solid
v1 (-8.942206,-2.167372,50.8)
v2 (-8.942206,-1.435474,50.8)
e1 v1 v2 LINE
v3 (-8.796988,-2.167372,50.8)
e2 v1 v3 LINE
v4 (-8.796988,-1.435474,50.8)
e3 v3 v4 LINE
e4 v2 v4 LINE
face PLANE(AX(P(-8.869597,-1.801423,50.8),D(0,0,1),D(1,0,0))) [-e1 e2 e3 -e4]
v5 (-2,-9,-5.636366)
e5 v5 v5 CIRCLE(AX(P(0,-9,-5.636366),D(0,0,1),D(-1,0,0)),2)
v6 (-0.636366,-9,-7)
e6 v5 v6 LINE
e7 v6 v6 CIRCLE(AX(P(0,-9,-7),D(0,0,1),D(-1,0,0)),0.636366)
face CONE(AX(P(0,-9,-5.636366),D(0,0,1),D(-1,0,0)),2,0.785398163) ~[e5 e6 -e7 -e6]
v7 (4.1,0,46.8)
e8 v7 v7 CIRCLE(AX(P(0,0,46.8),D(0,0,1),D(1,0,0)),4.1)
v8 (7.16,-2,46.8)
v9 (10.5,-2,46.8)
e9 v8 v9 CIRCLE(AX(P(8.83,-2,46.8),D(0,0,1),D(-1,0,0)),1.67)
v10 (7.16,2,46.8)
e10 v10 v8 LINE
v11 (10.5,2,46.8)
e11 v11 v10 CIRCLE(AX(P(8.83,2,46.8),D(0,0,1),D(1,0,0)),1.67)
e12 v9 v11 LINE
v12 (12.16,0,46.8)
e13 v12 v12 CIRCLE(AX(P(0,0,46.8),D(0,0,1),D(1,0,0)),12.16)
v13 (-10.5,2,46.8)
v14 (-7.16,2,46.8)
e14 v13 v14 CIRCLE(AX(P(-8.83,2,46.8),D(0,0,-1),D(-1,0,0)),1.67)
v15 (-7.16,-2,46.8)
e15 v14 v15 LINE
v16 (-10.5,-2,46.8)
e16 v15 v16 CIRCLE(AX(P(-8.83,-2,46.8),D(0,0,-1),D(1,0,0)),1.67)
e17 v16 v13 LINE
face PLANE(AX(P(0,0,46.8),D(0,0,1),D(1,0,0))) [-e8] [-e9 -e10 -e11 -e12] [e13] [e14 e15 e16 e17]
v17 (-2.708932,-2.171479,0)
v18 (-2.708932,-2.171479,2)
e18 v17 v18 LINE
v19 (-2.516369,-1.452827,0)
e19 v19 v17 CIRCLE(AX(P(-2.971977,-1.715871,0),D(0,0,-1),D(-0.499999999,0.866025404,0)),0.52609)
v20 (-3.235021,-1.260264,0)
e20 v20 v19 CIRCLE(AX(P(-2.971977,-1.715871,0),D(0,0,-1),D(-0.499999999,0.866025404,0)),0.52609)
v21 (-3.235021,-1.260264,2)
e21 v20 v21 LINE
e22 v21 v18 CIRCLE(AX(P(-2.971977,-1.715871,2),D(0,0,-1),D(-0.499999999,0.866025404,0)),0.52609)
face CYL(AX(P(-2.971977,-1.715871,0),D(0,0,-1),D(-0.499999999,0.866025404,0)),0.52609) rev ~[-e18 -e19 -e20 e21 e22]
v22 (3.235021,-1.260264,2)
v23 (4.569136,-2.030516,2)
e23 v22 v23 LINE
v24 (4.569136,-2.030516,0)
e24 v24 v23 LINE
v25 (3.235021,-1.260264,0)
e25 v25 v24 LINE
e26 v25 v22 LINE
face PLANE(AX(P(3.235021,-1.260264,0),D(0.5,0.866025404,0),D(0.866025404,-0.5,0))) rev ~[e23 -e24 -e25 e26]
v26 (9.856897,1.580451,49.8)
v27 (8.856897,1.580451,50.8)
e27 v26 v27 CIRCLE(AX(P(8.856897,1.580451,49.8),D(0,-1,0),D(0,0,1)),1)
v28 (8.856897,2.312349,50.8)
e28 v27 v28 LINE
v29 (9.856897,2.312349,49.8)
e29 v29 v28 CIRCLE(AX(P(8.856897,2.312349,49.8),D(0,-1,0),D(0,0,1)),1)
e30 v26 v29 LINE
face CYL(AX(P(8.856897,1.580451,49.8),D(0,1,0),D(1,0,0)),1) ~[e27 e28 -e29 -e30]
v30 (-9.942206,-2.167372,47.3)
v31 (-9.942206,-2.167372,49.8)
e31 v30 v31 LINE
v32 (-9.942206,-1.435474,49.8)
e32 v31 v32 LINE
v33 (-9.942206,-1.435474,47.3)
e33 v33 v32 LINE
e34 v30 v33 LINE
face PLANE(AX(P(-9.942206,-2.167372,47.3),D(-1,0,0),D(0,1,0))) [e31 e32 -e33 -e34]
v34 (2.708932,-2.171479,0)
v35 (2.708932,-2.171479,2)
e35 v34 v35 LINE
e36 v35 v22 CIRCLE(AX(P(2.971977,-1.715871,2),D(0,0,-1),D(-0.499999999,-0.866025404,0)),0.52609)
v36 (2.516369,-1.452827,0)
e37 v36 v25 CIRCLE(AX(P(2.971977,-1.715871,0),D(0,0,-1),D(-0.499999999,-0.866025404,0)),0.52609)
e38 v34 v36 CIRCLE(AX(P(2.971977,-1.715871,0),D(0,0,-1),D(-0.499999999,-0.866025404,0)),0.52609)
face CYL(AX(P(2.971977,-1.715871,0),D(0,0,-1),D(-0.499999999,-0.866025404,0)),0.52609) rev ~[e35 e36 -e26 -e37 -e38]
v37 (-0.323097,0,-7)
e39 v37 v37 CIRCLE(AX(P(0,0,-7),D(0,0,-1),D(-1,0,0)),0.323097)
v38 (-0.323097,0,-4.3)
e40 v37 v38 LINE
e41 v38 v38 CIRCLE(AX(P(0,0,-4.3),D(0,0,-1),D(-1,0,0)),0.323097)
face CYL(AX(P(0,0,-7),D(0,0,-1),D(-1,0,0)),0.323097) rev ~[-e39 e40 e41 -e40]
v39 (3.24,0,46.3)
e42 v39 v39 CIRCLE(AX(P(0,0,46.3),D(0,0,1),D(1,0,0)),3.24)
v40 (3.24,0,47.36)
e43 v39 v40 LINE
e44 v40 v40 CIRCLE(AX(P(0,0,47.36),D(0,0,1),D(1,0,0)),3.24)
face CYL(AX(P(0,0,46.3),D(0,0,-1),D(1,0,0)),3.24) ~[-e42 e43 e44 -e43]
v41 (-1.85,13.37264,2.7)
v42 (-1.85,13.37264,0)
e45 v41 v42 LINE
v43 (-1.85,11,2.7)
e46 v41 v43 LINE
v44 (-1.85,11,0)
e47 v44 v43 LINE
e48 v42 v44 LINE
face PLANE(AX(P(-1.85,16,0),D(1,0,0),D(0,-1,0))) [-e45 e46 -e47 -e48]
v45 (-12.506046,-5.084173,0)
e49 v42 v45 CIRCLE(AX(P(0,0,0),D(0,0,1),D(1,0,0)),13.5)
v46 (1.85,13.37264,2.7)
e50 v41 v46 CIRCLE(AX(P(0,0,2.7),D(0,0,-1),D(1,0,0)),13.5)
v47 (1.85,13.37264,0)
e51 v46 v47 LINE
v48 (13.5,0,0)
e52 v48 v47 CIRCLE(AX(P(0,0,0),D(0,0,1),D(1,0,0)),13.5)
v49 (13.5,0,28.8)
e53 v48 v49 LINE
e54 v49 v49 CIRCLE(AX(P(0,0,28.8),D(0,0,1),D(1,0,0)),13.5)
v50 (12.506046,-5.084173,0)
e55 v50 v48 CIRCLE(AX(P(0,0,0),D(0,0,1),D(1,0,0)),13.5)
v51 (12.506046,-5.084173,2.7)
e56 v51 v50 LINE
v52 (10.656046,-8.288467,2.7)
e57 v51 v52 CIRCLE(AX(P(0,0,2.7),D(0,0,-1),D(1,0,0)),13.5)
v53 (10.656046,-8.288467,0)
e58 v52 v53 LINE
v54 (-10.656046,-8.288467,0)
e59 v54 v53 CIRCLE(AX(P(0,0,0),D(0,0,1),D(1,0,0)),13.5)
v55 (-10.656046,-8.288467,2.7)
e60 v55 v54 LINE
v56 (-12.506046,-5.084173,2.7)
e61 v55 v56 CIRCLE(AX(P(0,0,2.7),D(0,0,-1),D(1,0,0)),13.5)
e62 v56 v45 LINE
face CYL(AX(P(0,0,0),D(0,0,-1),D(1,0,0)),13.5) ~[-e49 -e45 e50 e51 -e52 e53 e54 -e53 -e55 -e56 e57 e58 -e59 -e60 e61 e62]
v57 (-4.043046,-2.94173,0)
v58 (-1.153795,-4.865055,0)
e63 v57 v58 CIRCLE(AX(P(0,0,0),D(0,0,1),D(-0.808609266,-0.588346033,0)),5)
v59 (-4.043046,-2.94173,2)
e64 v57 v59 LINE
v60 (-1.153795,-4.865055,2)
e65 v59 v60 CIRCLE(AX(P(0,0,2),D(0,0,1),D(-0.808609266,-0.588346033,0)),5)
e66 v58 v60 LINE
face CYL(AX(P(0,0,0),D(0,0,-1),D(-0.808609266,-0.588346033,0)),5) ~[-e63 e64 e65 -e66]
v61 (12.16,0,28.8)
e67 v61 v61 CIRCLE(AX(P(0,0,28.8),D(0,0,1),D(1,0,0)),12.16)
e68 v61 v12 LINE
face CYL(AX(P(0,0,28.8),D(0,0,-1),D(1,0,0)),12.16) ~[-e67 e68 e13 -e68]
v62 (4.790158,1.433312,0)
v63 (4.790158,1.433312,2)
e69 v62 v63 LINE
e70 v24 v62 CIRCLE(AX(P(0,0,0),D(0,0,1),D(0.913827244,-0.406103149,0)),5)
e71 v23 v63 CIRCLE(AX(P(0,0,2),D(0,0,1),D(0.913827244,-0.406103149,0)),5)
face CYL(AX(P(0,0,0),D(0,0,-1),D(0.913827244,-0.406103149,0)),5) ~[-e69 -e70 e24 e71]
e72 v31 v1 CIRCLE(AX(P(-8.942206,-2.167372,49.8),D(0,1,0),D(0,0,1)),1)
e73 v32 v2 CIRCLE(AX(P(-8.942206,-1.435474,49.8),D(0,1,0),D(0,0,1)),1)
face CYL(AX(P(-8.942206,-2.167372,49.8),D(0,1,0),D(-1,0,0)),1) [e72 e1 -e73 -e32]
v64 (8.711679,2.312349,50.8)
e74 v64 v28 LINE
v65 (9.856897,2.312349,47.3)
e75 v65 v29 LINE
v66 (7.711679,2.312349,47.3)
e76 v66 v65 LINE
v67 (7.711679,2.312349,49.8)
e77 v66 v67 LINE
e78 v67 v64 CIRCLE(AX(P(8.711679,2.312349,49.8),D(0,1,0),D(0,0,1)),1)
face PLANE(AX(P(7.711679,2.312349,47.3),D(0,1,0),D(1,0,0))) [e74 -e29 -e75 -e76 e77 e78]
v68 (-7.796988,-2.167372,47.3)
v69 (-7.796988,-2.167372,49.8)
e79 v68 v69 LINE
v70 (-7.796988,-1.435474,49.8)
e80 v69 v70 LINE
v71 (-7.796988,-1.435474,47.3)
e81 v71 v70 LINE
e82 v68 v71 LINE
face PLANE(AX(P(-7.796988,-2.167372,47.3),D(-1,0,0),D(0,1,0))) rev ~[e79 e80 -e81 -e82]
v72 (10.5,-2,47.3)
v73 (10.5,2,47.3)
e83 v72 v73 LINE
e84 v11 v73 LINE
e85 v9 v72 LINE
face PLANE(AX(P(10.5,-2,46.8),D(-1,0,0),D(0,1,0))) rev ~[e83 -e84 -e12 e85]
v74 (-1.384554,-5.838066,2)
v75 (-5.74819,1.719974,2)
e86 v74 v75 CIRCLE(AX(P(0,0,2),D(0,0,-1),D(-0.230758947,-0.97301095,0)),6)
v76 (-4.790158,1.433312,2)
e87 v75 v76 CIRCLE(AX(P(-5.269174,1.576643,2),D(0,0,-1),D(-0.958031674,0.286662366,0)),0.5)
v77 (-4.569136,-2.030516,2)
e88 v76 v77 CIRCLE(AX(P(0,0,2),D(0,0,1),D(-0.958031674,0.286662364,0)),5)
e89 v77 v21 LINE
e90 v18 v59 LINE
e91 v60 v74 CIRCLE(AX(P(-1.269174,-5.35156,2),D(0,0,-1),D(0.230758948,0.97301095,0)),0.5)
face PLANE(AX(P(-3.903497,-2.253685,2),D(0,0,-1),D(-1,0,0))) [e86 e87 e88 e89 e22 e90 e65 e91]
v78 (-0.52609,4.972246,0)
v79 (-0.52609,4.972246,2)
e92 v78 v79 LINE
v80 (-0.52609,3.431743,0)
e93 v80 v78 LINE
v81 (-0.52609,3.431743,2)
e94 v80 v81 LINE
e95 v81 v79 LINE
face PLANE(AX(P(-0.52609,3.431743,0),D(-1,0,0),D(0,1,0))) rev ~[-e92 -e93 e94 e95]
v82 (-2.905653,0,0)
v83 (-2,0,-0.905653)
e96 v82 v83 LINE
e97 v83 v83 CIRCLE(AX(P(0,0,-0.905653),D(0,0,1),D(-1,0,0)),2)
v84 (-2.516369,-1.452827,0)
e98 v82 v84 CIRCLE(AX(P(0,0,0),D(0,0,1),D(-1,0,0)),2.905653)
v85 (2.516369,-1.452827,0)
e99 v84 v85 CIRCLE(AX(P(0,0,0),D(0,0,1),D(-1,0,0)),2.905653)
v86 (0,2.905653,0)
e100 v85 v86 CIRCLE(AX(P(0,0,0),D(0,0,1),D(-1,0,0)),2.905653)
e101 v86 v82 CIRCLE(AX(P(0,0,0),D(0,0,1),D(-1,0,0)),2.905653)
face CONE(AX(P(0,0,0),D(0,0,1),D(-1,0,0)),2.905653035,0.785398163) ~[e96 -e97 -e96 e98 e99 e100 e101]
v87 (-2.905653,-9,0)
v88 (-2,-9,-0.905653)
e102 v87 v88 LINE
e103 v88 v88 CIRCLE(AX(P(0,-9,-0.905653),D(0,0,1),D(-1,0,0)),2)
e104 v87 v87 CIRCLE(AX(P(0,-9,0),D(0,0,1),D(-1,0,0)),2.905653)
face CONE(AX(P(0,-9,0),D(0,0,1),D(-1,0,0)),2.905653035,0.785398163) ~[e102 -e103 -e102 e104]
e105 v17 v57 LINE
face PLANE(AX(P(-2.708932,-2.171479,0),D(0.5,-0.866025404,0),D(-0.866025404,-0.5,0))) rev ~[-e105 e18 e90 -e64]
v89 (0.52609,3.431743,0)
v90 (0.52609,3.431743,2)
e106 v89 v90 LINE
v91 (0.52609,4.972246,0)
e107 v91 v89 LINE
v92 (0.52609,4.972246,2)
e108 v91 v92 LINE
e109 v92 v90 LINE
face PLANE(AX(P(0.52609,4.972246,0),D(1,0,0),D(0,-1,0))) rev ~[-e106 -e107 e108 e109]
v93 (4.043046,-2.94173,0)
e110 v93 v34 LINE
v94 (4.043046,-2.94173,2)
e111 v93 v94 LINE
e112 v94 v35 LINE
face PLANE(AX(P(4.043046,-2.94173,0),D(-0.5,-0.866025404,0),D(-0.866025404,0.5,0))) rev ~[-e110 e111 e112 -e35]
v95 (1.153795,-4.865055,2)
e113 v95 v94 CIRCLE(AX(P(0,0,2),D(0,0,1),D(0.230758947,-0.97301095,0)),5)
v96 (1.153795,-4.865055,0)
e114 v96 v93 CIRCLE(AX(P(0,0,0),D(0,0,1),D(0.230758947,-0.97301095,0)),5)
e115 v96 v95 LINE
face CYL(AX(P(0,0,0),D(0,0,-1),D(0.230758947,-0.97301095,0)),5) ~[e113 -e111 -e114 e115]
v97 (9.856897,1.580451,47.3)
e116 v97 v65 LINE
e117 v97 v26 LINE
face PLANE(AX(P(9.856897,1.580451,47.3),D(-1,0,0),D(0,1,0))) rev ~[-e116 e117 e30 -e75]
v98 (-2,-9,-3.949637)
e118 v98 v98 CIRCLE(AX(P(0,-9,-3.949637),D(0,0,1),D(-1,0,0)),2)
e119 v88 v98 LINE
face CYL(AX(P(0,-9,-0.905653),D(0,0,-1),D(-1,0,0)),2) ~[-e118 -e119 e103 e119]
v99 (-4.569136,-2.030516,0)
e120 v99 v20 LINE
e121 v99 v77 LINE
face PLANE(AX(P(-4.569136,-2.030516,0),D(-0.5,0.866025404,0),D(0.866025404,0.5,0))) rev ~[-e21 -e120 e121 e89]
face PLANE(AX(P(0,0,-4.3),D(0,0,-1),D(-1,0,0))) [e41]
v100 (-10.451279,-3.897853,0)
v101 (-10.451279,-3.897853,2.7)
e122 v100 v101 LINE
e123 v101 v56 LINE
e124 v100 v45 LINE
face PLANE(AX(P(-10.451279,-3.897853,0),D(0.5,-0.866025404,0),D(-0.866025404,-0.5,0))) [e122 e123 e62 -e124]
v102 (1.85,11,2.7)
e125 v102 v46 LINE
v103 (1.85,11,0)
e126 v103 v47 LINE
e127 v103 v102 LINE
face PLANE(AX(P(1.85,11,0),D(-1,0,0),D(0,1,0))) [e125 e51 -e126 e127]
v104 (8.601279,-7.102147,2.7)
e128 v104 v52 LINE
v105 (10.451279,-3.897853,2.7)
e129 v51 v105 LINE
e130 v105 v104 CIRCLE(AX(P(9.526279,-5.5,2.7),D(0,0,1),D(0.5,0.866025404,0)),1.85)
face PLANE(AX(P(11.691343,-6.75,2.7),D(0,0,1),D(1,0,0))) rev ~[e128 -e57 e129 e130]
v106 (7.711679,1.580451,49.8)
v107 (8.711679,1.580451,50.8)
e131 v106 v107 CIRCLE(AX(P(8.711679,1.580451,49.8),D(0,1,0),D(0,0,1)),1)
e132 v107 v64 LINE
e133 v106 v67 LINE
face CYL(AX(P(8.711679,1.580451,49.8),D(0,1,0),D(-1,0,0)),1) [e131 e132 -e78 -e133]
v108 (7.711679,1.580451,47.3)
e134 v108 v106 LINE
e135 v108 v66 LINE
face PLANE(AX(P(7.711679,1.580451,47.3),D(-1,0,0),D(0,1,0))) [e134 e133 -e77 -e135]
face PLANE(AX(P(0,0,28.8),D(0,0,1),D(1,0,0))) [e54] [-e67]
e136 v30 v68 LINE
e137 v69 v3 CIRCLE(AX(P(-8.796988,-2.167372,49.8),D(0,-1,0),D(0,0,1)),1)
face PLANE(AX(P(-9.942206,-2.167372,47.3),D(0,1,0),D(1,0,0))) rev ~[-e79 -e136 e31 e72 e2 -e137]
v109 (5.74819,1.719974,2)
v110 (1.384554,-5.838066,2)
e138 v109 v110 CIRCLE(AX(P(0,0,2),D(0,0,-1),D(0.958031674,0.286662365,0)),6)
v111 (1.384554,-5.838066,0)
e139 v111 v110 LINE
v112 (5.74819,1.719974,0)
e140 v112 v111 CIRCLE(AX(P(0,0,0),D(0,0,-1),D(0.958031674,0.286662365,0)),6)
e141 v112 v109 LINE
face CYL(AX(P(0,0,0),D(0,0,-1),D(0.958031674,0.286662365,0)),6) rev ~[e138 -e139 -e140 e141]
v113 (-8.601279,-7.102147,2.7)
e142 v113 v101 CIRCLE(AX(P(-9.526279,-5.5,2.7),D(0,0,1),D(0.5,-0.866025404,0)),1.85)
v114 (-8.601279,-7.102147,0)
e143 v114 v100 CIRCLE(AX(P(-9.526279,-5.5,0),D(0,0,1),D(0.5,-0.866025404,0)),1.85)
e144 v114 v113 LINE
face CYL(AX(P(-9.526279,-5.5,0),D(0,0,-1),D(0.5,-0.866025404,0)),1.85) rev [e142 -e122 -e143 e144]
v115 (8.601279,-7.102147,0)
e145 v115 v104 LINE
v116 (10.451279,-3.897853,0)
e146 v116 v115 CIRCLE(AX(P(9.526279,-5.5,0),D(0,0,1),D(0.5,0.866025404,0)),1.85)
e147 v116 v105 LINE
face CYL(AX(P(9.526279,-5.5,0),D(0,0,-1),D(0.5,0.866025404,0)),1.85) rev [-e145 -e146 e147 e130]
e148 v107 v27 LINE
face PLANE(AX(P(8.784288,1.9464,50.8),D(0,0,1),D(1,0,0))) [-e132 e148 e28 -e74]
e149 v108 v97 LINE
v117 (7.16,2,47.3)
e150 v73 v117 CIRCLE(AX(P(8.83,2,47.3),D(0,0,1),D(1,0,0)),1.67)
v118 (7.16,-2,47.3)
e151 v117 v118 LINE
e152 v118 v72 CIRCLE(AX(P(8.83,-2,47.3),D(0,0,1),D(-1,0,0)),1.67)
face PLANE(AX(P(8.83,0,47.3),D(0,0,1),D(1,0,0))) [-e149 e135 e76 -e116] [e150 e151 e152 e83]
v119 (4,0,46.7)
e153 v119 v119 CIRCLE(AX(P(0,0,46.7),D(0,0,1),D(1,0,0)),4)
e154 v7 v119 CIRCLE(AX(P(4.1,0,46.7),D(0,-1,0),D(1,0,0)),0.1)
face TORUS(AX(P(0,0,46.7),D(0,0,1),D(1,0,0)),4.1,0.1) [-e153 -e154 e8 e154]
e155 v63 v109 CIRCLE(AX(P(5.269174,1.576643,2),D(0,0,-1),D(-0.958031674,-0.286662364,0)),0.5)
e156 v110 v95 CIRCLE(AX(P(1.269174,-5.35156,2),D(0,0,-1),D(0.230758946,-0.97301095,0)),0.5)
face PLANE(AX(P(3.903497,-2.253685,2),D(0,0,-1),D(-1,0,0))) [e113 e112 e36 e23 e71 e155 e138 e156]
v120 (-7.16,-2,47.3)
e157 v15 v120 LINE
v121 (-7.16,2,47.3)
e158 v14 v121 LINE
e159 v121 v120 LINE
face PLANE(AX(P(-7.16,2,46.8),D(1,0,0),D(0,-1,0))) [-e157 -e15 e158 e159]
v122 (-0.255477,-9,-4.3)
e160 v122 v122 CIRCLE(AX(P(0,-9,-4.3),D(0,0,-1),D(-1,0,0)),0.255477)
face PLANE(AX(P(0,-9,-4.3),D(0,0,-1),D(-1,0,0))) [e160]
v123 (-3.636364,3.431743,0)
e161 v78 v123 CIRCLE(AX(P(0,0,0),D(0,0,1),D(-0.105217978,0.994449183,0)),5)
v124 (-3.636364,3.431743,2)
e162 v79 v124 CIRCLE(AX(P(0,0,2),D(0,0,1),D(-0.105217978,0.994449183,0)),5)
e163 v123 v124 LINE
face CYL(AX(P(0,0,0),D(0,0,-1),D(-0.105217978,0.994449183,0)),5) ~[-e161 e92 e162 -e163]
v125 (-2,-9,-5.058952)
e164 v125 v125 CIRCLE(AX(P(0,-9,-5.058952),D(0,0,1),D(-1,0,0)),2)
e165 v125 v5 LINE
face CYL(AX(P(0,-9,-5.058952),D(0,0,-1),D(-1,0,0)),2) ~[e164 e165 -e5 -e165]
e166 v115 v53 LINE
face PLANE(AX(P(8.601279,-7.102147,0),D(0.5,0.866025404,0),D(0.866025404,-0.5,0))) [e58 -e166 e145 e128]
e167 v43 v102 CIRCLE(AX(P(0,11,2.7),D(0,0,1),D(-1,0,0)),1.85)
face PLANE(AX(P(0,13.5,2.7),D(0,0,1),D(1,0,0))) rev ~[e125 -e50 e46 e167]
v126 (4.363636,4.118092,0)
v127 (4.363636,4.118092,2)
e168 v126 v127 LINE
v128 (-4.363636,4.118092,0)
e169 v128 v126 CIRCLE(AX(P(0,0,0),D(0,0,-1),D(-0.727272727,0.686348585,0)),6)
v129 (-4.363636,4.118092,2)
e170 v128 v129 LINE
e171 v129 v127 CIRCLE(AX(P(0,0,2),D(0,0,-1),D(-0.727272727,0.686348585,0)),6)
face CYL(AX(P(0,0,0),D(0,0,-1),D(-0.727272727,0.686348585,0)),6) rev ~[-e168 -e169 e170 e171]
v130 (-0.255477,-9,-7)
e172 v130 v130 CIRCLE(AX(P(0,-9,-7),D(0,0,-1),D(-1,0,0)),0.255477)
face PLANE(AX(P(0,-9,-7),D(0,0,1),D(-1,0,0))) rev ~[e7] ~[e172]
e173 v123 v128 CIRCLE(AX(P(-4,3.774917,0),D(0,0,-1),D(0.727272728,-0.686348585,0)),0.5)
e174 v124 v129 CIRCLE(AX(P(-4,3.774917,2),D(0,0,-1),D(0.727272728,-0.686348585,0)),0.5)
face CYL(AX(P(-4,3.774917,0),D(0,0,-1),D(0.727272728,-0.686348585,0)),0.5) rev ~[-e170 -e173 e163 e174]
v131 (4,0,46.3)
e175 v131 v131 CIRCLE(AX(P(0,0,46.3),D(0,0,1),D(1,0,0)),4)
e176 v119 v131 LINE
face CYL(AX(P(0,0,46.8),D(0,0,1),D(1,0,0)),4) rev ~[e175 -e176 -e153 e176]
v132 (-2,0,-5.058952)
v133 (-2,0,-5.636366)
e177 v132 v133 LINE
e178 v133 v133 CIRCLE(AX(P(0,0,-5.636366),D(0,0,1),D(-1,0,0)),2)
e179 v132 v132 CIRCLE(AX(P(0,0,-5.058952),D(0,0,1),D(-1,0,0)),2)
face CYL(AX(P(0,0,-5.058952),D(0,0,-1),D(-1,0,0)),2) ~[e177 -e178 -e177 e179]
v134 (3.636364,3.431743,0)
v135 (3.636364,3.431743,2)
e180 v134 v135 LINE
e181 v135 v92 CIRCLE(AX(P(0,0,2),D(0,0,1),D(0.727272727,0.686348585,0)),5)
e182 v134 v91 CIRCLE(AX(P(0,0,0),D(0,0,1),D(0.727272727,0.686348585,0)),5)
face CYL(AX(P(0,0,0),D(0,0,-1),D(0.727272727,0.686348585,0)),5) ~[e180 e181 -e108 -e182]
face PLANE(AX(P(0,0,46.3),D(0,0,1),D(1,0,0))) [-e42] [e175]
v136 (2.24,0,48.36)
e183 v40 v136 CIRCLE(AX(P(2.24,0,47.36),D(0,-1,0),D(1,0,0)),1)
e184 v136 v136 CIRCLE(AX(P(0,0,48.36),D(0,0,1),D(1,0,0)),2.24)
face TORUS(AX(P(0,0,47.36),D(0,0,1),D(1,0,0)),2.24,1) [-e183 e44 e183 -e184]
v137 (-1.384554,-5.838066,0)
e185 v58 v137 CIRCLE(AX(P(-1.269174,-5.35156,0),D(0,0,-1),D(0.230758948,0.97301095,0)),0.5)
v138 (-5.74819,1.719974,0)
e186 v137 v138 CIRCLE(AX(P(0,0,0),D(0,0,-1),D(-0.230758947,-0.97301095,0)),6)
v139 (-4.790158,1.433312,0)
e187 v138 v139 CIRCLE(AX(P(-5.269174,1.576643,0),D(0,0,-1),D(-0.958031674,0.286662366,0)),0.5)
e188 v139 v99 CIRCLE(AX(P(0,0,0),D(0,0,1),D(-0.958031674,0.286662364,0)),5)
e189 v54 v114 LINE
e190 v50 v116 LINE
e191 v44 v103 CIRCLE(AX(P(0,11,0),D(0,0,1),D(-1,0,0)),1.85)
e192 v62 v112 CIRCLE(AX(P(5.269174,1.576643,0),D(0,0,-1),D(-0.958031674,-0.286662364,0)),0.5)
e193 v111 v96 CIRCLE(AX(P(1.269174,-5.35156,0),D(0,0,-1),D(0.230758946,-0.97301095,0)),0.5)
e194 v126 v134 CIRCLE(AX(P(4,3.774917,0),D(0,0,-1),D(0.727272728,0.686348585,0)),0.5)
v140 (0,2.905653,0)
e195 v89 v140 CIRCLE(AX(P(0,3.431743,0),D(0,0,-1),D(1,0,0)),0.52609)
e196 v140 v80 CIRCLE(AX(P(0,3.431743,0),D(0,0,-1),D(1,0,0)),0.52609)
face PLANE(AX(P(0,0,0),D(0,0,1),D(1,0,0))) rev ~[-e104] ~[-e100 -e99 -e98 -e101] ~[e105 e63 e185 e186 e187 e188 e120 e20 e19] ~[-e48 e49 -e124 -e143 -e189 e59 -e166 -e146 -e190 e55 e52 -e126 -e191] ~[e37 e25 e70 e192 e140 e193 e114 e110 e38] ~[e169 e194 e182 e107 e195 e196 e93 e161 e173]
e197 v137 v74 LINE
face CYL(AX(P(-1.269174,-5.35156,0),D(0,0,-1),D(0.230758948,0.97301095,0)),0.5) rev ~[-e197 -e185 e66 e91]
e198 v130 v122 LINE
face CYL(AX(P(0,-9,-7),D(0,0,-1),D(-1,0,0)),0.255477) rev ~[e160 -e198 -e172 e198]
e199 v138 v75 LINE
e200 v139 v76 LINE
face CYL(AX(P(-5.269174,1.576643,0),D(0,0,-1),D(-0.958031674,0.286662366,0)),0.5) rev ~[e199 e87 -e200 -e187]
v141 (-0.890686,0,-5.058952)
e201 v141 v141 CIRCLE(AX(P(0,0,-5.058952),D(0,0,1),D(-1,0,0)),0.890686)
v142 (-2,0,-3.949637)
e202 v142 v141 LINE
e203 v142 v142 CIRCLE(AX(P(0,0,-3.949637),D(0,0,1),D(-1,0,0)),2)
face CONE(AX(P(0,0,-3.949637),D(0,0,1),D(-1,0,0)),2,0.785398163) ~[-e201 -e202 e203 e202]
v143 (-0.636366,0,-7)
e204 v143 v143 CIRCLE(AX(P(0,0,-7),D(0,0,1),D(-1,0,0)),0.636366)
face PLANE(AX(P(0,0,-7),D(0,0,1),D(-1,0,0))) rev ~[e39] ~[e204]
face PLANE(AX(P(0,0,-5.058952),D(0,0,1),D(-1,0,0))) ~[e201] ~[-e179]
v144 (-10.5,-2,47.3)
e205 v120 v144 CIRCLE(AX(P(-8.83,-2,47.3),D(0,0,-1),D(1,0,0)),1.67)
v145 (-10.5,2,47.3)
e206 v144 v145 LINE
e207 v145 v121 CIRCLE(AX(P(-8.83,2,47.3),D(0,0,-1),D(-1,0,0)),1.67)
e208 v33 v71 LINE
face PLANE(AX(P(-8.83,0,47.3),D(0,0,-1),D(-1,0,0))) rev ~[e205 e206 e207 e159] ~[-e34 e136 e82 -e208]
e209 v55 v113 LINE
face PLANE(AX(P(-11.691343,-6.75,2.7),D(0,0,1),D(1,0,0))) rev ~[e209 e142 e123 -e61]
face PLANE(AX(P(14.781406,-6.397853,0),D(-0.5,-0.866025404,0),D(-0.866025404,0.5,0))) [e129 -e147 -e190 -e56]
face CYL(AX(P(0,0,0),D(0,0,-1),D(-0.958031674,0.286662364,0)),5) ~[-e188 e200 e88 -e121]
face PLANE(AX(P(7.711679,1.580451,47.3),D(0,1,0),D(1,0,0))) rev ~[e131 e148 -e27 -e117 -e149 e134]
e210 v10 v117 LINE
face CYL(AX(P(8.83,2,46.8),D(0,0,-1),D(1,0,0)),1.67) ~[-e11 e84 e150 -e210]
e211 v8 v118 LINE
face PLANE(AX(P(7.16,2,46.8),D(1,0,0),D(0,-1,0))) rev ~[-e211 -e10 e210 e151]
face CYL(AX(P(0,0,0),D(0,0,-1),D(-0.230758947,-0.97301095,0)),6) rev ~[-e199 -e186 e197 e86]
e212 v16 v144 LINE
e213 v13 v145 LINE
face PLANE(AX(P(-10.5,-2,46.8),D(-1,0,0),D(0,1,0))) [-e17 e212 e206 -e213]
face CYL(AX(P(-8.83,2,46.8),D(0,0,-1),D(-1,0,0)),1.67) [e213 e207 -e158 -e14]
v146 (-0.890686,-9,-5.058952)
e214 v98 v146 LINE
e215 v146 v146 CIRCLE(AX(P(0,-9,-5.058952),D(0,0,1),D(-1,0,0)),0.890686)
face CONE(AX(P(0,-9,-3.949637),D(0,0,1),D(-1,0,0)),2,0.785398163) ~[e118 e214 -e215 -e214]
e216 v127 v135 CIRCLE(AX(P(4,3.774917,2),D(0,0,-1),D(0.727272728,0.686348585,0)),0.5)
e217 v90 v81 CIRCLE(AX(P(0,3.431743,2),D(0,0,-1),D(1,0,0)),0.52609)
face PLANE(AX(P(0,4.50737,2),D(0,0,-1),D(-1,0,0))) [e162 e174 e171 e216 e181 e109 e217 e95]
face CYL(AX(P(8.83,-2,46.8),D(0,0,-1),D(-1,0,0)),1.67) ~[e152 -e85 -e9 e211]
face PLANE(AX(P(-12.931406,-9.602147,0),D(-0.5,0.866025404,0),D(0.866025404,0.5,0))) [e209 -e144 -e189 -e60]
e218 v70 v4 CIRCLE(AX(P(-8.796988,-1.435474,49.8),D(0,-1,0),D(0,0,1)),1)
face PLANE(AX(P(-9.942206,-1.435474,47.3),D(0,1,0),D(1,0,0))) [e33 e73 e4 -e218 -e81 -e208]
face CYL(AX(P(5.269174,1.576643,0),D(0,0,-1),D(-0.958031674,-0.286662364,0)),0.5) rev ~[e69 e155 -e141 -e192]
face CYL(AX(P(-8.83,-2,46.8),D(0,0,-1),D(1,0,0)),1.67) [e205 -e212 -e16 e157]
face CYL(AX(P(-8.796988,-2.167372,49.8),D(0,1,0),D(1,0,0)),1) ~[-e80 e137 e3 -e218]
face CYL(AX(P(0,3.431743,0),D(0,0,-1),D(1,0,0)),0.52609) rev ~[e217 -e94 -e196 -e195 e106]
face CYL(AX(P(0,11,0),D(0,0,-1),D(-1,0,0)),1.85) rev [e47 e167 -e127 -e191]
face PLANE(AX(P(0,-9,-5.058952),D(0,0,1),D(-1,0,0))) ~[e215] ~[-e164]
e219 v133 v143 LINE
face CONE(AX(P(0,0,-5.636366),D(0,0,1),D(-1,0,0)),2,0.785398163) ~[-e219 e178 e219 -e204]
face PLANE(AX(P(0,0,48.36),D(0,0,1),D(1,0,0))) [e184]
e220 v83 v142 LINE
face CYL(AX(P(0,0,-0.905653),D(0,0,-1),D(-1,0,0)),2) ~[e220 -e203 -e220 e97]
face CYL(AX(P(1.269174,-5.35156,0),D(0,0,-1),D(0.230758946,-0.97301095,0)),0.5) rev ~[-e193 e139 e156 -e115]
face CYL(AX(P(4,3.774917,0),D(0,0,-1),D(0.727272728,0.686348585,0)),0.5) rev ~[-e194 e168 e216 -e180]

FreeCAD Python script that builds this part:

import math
import FreeCAD as App
import Part
import Sketcher
Q = App.Units.Quantity


def edges_at(feature, points):
    """Names of the edges that pass closest to the given points."""
    edges = feature.Shape.Edges
    near = lambda p: min(range(len(edges)), key=lambda i: edges[i].distToShape(Part.Vertex(*p))[0])
    return sorted({f"Edge{near(p) + 1}" for p in points})


def add_polygon(sketch, points):
    """Adds a closed chain of lines whose ends are joined by coincident constraints."""
    first, n = sketch.GeometryCount, len(points)
    for a, b in zip(points, points[1:] + points[:1]):
        sketch.addGeometry(Part.LineSegment(App.Vector(*a, 0), App.Vector(*b, 0)), False)
    for i in range(n):
        sketch.addConstraint(Sketcher.Constraint("Coincident", first + i, 2, first + (i + 1) % n, 1))

doc = App.newDocument("Part")
body = doc.addObject("PartDesign::Body", "Body")

sketch1 = body.newObject("Sketcher::SketchObject", "Sketch")
sketch1.AttachmentSupport = (doc.getObject("XY_Plane"), [""])
sketch1.MapMode = "FlatFace"
sketch1.addGeometry(Part.Circle(App.Vector(0, 0, 0), App.Vector(0, 0, 1), 13.5), False)
sketch1.addConstraint(Sketcher.Constraint("Coincident", 0, 3, -1, 1))
sketch1.addConstraint(Sketcher.Constraint("Diameter", 0, 27.0))
pad1 = body.newObject("PartDesign::Pad", "Pad")
pad1.Profile = sketch1
pad1.Length = 28.8

sketch2 = body.newObject("Sketcher::SketchObject", "Sketch001")
sketch2.AttachmentSupport = (doc.getObject("XY_Plane"), [""])
sketch2.MapMode = "FlatFace"
sketch2.AttachmentOffset = App.Placement(App.Vector(0, 0, 28.8), App.Rotation())
sketch2.addGeometry(Part.Circle(App.Vector(0, 0, 0), App.Vector(0, 0, 1), 12.16), False)
sketch2.addConstraint(Sketcher.Constraint("Coincident", 0, 3, -1, 1))
sketch2.addConstraint(Sketcher.Constraint("Diameter", 0, 24.32))
pad2 = body.newObject("PartDesign::Pad", "Pad001")
pad2.Profile = sketch2
pad2.Length = 18

sketch3 = body.newObject("Sketcher::SketchObject", "Sketch002")
sketch3.AttachmentSupport = (doc.getObject("XY_Plane"), [""])
sketch3.MapMode = "FlatFace"
sketch3.AttachmentOffset = App.Placement(App.Vector(0, 0, 46.8), App.Rotation())
sketch3.addGeometry(Part.Circle(App.Vector(0, 0, 0), App.Vector(0, 0, 1), 4), False)
sketch3.addConstraint(Sketcher.Constraint("Coincident", 0, 3, -1, 1))
sketch3.addConstraint(Sketcher.Constraint("Diameter", 0, 8.0))
pocket1 = body.newObject("PartDesign::Pocket", "Pocket")
pocket1.Profile = sketch3
pocket1.Length = 0.5

sketch4 = body.newObject("Sketcher::SketchObject", "Sketch003")
sketch4.AttachmentSupport = (doc.getObject("XY_Plane"), [""])
sketch4.MapMode = "FlatFace"
sketch4.AttachmentOffset = App.Placement(App.Vector(0, 0, 46.3), App.Rotation())
sketch4.addGeometry(Part.Circle(App.Vector(0, 0, 0), App.Vector(0, 0, 1), 3.24), False)
sketch4.addConstraint(Sketcher.Constraint("Coincident", 0, 3, -1, 1))
sketch4.addConstraint(Sketcher.Constraint("Diameter", 0, 6.48))
pad3 = body.newObject("PartDesign::Pad", "Pad002")
pad3.Profile = sketch4
pad3.Length = 2.06
doc.recompute()

fillet = body.newObject("PartDesign::Fillet", "Fillet")
fillet.Base = (pad3, edges_at(pad3, [(-4, 0, 46.8)]))
fillet.Radius = 0.1
doc.recompute()

fillet2 = body.newObject("PartDesign::Fillet", "Fillet001")
fillet2.Base = (fillet, edges_at(fillet, [(-3.24, 0, 48.36)]))
fillet2.Radius = 1

sketch5 = body.newObject("Sketcher::SketchObject", "Sketch004")
sketch5.AttachmentSupport = (doc.getObject("XY_Plane"), [""])
sketch5.MapMode = "FlatFace"
sketch5.AttachmentOffset = App.Placement(App.Vector(0, 0, 46.8), App.Rotation())
sketch5.addGeometry(Part.LineSegment(App.Vector(-7.16, -2, 0), App.Vector(-7.16, 2, 0)), False)
sketch5.addGeometry(Part.ArcOfCircle(Part.Circle(App.Vector(-8.83, 2, 0), App.Vector(0, 0, 1), 1.67), math.radians(0), math.radians(180)), False)
sketch5.addGeometry(Part.LineSegment(App.Vector(-10.5, 2, 0), App.Vector(-10.5, -2, 0)), False)
sketch5.addGeometry(Part.ArcOfCircle(Part.Circle(App.Vector(-8.83, -2, 0), App.Vector(0, 0, 1), 1.67), math.radians(180), math.radians(360)), False)
sketch5.addGeometry(Part.LineSegment(App.Vector(7.16, 2, 0), App.Vector(7.16, -2, 0)), False)
sketch5.addGeometry(Part.ArcOfCircle(Part.Circle(App.Vector(8.83, -2, 0), App.Vector(0, 0, 1), 1.67), math.radians(180), math.radians(360)), False)
sketch5.addGeometry(Part.LineSegment(App.Vector(10.5, -2, 0), App.Vector(10.5, 2, 0)), False)
sketch5.addGeometry(Part.ArcOfCircle(Part.Circle(App.Vector(8.83, 2, 0), App.Vector(0, 0, 1), 1.67), math.radians(0), math.radians(180)), False)
sketch5.addConstraint(Sketcher.Constraint("Tangent", 0, 2, 1, 1))
sketch5.addConstraint(Sketcher.Constraint("Tangent", 1, 2, 2, 1))
sketch5.addConstraint(Sketcher.Constraint("Tangent", 2, 2, 3, 1))
sketch5.addConstraint(Sketcher.Constraint("Tangent", 3, 2, 0, 1))
sketch5.addConstraint(Sketcher.Constraint("Tangent", 4, 2, 5, 1))
sketch5.addConstraint(Sketcher.Constraint("Tangent", 5, 2, 6, 1))
sketch5.addConstraint(Sketcher.Constraint("Tangent", 6, 2, 7, 1))
sketch5.addConstraint(Sketcher.Constraint("Tangent", 7, 2, 4, 1))
sketch5.addConstraint(Sketcher.Constraint("Vertical", 0))
sketch5.addConstraint(Sketcher.Constraint("Vertical", 2))
sketch5.addConstraint(Sketcher.Constraint("Vertical", 4))
sketch5.addConstraint(Sketcher.Constraint("Vertical", 6))
sketch5.addConstraint(Sketcher.Constraint("Equal", 3, 5))
sketch5.addConstraint(Sketcher.Constraint("Symmetric", 1, 3, 5, 3, -1, 1))
sketch5.addConstraint(Sketcher.Constraint("Horizontal", 3, 3, 5, 3))
sketch5.addConstraint(Sketcher.Constraint("Horizontal", 1, 3, 7, 3))
sketch5.addConstraint(Sketcher.Constraint("DistanceY", 0, 1, 0, 2, 4.0))
sketch5.addConstraint(Sketcher.Constraint("Radius", 1, 1.67))
sketch5.addConstraint(Sketcher.Constraint("DistanceX", 1, 2, -1, 1, 10.5))
pad4 = body.newObject("PartDesign::Pad", "Pad003")
pad4.Profile = sketch5
pad4.Length = 0.5

sketch6 = body.newObject("Sketcher::SketchObject", "Sketch005")
sketch6.AttachmentSupport = (doc.getObject("XY_Plane"), [""])
sketch6.MapMode = "FlatFace"
sketch6.AttachmentOffset = App.Placement(App.Vector(0, 0, 47.3), App.Rotation())
add_polygon(sketch6, [(-9.942206, -1.435474), (-9.942206, -2.167372), (-7.796988, -2.167372), (-7.796988, -1.435474)])
add_polygon(sketch6, [(7.711679, 2.312349), (7.711679, 1.580451), (9.856897, 1.580451), (9.856897, 2.312349)])
sketch6.addConstraint(Sketcher.Constraint("Vertical", 0))
sketch6.addConstraint(Sketcher.Constraint("Horizontal", 1))
sketch6.addConstraint(Sketcher.Constraint("Vertical", 2))
sketch6.addConstraint(Sketcher.Constraint("Horizontal", 3))
sketch6.addConstraint(Sketcher.Constraint("Vertical", 4))
sketch6.addConstraint(Sketcher.Constraint("Horizontal", 5))
sketch6.addConstraint(Sketcher.Constraint("Vertical", 6))
sketch6.addConstraint(Sketcher.Constraint("Horizontal", 7))
sketch6.addConstraint(Sketcher.Constraint("Equal", 3, 5))
sketch6.addConstraint(Sketcher.Constraint("Equal", 2, 4))
sketch6.addConstraint(Sketcher.Constraint("DistanceY", 0, 2, 0, 1, 0.731898))
sketch6.addConstraint(Sketcher.Constraint("DistanceX", 1, 1, 1, 2, 2.145218))
sketch6.addConstraint(Sketcher.Constraint("DistanceY", 0, 2, -1, 1, 2.167372))
sketch6.addConstraint(Sketcher.Constraint("DistanceX", -1, 1, 4, 2, 7.711679))
sketch6.addConstraint(Sketcher.Constraint("DistanceY", -1, 1, 4, 2, 1.580451))
sketch6.addConstraint(Sketcher.Constraint("DistanceX", 0, 2, -1, 1, 9.942206))
pad5 = body.newObject("PartDesign::Pad", "Pad004")
pad5.Profile = sketch6
pad5.Length = 3.5
doc.recompute()

fillet3 = body.newObject("PartDesign::Fillet", "Fillet002")
fillet3.Base = (pad5, edges_at(pad5, [
    (7.712, 1.946, 50.8),
    (9.857, 1.946, 50.8),
    (-9.942, -1.801, 50.8),
    (-7.797, -1.801, 50.8),
]))
fillet3.Radius = 1

sketch7 = body.newObject("Sketcher::SketchObject", "Sketch006")
sketch7.AttachmentSupport = (doc.getObject("XY_Plane"), [""])
sketch7.MapMode = "FlatFace"
sketch7.addGeometry(Part.LineSegment(App.Vector(-1.85, 11, 0), App.Vector(-1.85, 16, 0)), False)
sketch7.addGeometry(Part.ArcOfCircle(Part.Circle(App.Vector(0, 16, 0), App.Vector(0, 0, 1), 1.85), math.radians(0), math.radians(180)), False)
sketch7.addGeometry(Part.LineSegment(App.Vector(1.85, 16, 0), App.Vector(1.85, 11, 0)), False)
sketch7.addGeometry(Part.ArcOfCircle(Part.Circle(App.Vector(0, 11, 0), App.Vector(0, 0, 1), 1.85), math.radians(180), math.radians(360)), False)
sketch7.addGeometry(Part.LineSegment(App.Vector(-8.601279, -7.102147, 0), App.Vector(-12.931406, -9.602147, 0)), False)
sketch7.addGeometry(Part.ArcOfCircle(Part.Circle(App.Vector(-13.856406, -8, 0), App.Vector(0, 0, 1), 1.85), math.radians(120), math.radians(300)), False)
sketch7.addGeometry(Part.LineSegment(App.Vector(-14.781406, -6.397853, 0), App.Vector(-10.451279, -3.897853, 0)), False)
sketch7.addGeometry(Part.ArcOfCircle(Part.Circle(App.Vector(-9.526279, -5.5, 0), App.Vector(0, 0, 1), 1.85), math.radians(-60), math.radians(120)), False)
sketch7.addGeometry(Part.LineSegment(App.Vector(10.451279, -3.897853, 0), App.Vector(14.781406, -6.397853, 0)), False)
sketch7.addGeometry(Part.ArcOfCircle(Part.Circle(App.Vector(13.856406, -8, 0), App.Vector(0, 0, 1), 1.85), math.radians(-120), math.radians(60)), False)
sketch7.addGeometry(Part.LineSegment(App.Vector(12.931406, -9.602147, 0), App.Vector(8.601279, -7.102147, 0)), False)
sketch7.addGeometry(Part.ArcOfCircle(Part.Circle(App.Vector(9.526279, -5.5, 0), App.Vector(0, 0, 1), 1.85), math.radians(60), math.radians(240)), False)
sketch7.addConstraint(Sketcher.Constraint("Tangent", 0, 2, 1, 2))
sketch7.addConstraint(Sketcher.Constraint("Tangent", 1, 1, 2, 1))
sketch7.addConstraint(Sketcher.Constraint("Tangent", 2, 2, 3, 2))
sketch7.addConstraint(Sketcher.Constraint("Tangent", 3, 1, 0, 1))
sketch7.addConstraint(Sketcher.Constraint("Tangent", 4, 2, 5, 2))
sketch7.addConstraint(Sketcher.Constraint("Tangent", 5, 1, 6, 1))
sketch7.addConstraint(Sketcher.Constraint("Tangent", 6, 2, 7, 2))
sketch7.addConstraint(Sketcher.Constraint("Tangent", 7, 1, 4, 1))
sketch7.addConstraint(Sketcher.Constraint("Tangent", 8, 2, 9, 2))
sketch7.addConstraint(Sketcher.Constraint("Tangent", 9, 1, 10, 1))
sketch7.addConstraint(Sketcher.Constraint("Tangent", 10, 2, 11, 2))
sketch7.addConstraint(Sketcher.Constraint("Tangent", 11, 1, 8, 1))
sketch7.addConstraint(Sketcher.Constraint("Vertical", 0))
sketch7.addConstraint(Sketcher.Constraint("Vertical", 2))
sketch7.addConstraint(Sketcher.Constraint("Equal", 3, 5))
sketch7.addConstraint(Sketcher.Constraint("Equal", 5, 7))
sketch7.addConstraint(Sketcher.Constraint("Equal", 7, 9))
sketch7.addConstraint(Sketcher.Constraint("Equal", 9, 11))
sketch7.addConstraint(Sketcher.Constraint("Symmetric", 5, 3, 9, 3, -2))
sketch7.addConstraint(Sketcher.Constraint("Symmetric", 7, 3, 11, 3, -2))
sketch7.addConstraint(Sketcher.Constraint("PointOnObject", 1, 3, -2))
sketch7.addConstraint(Sketcher.Constraint("DistanceY", 0, 1, 0, 2, 5.0))
sketch7.addConstraint(Sketcher.Constraint("Angle", 4, Q("-150 deg")))
sketch7.addConstraint(Sketcher.Constraint("Radius", 1, 1.85))
sketch7.addConstraint(Sketcher.Constraint("Distance", 4, 5.0))
sketch7.addConstraint(Sketcher.Constraint("DistanceY", -1, 1, 1, 3, 16.0))
sketch7.addConstraint(Sketcher.Constraint("DistanceY", 5, 3, -1, 1, 8.0))
sketch7.addConstraint(Sketcher.Constraint("DistanceX", 7, 3, -1, 1, 9.526279))
pocket2 = body.newObject("PartDesign::Pocket", "Pocket001")
pocket2.Profile = sketch7
pocket2.Length = 2.7
pocket2.Reversed = True

sketch8 = body.newObject("Sketcher::SketchObject", "Sketch007")
sketch8.AttachmentSupport = (doc.getObject("XZ_Plane"), [""])
sketch8.MapMode = "FlatFace"
add_polygon(sketch8, [(0, 0), (0, -7), (-0.636366, -7), (-2, -5.636366), (-2, -5.058952), (-0.890686, -5.058952), (-2, -3.949637), (-2, -0.905653), (-2.905653, 0)])
sketch8.addConstraint(Sketcher.Constraint("Vertical", 0))
sketch8.addConstraint(Sketcher.Constraint("Horizontal", 1))
sketch8.addConstraint(Sketcher.Constraint("Vertical", 3))
sketch8.addConstraint(Sketcher.Constraint("Horizontal", 4))
sketch8.addConstraint(Sketcher.Constraint("Vertical", 6))
sketch8.addConstraint(Sketcher.Constraint("Horizontal", 8))
sketch8.addConstraint(Sketcher.Constraint("Coincident", 8, 2, -1, 1))
sketch8.addConstraint(Sketcher.Constraint("Parallel", 2, 5))
sketch8.addConstraint(Sketcher.Constraint("Parallel", 5, 7))
sketch8.addConstraint(Sketcher.Constraint("Vertical", 3, 2, 5, 2))
sketch8.addConstraint(Sketcher.Constraint("DistanceY", 0, 2, 0, 1, 7.0))
sketch8.addConstraint(Sketcher.Constraint("Angle", 2, Q("135 deg")))
sketch8.addConstraint(Sketcher.Constraint("DistanceX", 2, 2, -1, 1, 2.0))
sketch8.addConstraint(Sketcher.Constraint("DistanceY", 3, 2, 6, 2, 4.153299))
sketch8.addConstraint(Sketcher.Constraint("Distance", 2, 1.92847))
sketch8.addConstraint(Sketcher.Constraint("DistanceX", 4, 1, 4, 2, 1.109314))
sketch8.addConstraint(Sketcher.Constraint("DistanceX", 8, 1, 8, 2, 2.905653))
revolution = body.newObject("PartDesign::Revolution", "Revolution")
revolution.Profile = sketch8
revolution.ReferenceAxis = (sketch8, ["V_Axis"])
revolution.Angle = 360
doc.recompute()

linearpattern = body.newObject("PartDesign::LinearPattern", "LinearPattern")
linearpattern.Originals = [revolution]
linearpattern.Direction = (doc.getObject("Y_Axis"), [""])
linearpattern.Mode = "offset"
linearpattern.Offset = 9
linearpattern.Occurrences = 2
linearpattern.Reversed = True
body.Tip = linearpattern

sketch9 = body.newObject("Sketcher::SketchObject", "Sketch008")
sketch9.AttachmentSupport = (doc.getObject("XY_Plane"), [""])
sketch9.MapMode = "FlatFace"
sketch9.AttachmentOffset = App.Placement(App.Vector(0, 0, -7), App.Rotation())
sketch9.addGeometry(Part.Circle(App.Vector(0, 0, 0), App.Vector(0, 0, 1), 0.323097), False)
sketch9.addConstraint(Sketcher.Constraint("Coincident", 0, 3, -1, 1))
sketch9.addConstraint(Sketcher.Constraint("Diameter", 0, 0.646195))
pocket3 = body.newObject("PartDesign::Pocket", "Pocket002")
pocket3.Profile = sketch9
pocket3.Length = 2.7
pocket3.Reversed = True

sketch10 = body.newObject("Sketcher::SketchObject", "Sketch009")
sketch10.AttachmentSupport = (doc.getObject("XY_Plane"), [""])
sketch10.MapMode = "FlatFace"
sketch10.AttachmentOffset = App.Placement(App.Vector(0, 0, -7), App.Rotation())
sketch10.addGeometry(Part.Circle(App.Vector(0, -9, 0), App.Vector(0, 0, 1), 0.255477), False)
sketch10.addConstraint(Sketcher.Constraint("PointOnObject", 0, 3, -2))
sketch10.addConstraint(Sketcher.Constraint("DistanceY", 0, 3, -1, 1, 9.0))
sketch10.addConstraint(Sketcher.Constraint("Diameter", 0, 0.510955))
pocket4 = body.newObject("PartDesign::Pocket", "Pocket003")
pocket4.Profile = sketch10
pocket4.Length = 2.7
pocket4.Reversed = True

sketch11 = body.newObject("Sketcher::SketchObject", "Sketch010")
sketch11.AttachmentSupport = (doc.getObject("XY_Plane"), [""])
sketch11.MapMode = "FlatFace"
sketch11.addGeometry(Part.LineSegment(App.Vector(0.52609, 4.972246, 0), App.Vector(0.52609, 3.431743, 0)), False)
sketch11.addGeometry(Part.ArcOfCircle(Part.Circle(App.Vector(0, 3.431743, 0), App.Vector(0, 0, 1), 0.52609), math.radians(180), math.radians(360)), False)
sketch11.addGeometry(Part.LineSegment(App.Vector(-0.52609, 3.431743, 0), App.Vector(-0.52609, 4.972246, 0)), False)
sketch11.addGeometry(Part.ArcOfCircle(Part.Circle(App.Vector(0, 0, 0), App.Vector(0, 0, 1), 5), math.radians(96.039725), math.radians(136.658242)), False)
sketch11.addGeometry(Part.ArcOfCircle(Part.Circle(App.Vector(-4, 3.774917, 0), App.Vector(0, 0, 1), 0.5), math.radians(136.658242), math.radians(316.658242)), False)
sketch11.addGeometry(Part.ArcOfCircle(Part.Circle(App.Vector(0, 0, 0), App.Vector(0, 0, 1), 6), math.radians(43.341758), math.radians(136.658242)), False)
sketch11.addGeometry(Part.ArcOfCircle(Part.Circle(App.Vector(4, 3.774917, 0), App.Vector(0, 0, 1), 0.5), math.radians(-136.658242), math.radians(43.341758)), False)
sketch11.addGeometry(Part.ArcOfCircle(Part.Circle(App.Vector(0, 0, 0), App.Vector(0, 0, 1), 5), math.radians(43.341758), math.radians(83.960275)), False)
sketch11.addGeometry(Part.LineSegment(App.Vector(-2.708932, -2.171479, 0), App.Vector(-4.043046, -2.94173, 0)), False)
sketch11.addGeometry(Part.ArcOfCircle(Part.Circle(App.Vector(0, 0, 0), App.Vector(0, 0, 1), 5), math.radians(-143.960275), math.radians(-103.341758)), False)
sketch11.addGeometry(Part.ArcOfCircle(Part.Circle(App.Vector(-1.269174, -5.35156, 0), App.Vector(0, 0, 1), 0.5), math.radians(-103.341758), math.radians(76.658242)), False)
sketch11.addGeometry(Part.ArcOfCircle(Part.Circle(App.Vector(0, 0, 0), App.Vector(0, 0, 1), 6), math.radians(163.341758), math.radians(256.658242)), False)
sketch11.addGeometry(Part.ArcOfCircle(Part.Circle(App.Vector(-5.269174, 1.576643, 0), App.Vector(0, 0, 1), 0.5), math.radians(-16.658242), math.radians(163.341758)), False)
sketch11.addGeometry(Part.ArcOfCircle(Part.Circle(App.Vector(0, 0, 0), App.Vector(0, 0, 1), 5), math.radians(163.341758), math.radians(203.960275)), False)
sketch11.addGeometry(Part.LineSegment(App.Vector(-4.569136, -2.030516, 0), App.Vector(-3.235021, -1.260264, 0)), False)
sketch11.addGeometry(Part.ArcOfCircle(Part.Circle(App.Vector(-2.971977, -1.715871, 0), App.Vector(0, 0, 1), 0.52609), math.radians(-60), math.radians(120)), False)
sketch11.addGeometry(Part.LineSegment(App.Vector(3.235021, -1.260264, 0), App.Vector(4.569136, -2.030516, 0)), False)
sketch11.addGeometry(Part.ArcOfCircle(Part.Circle(App.Vector(0, 0, 0), App.Vector(0, 0, 1), 5), math.radians(-23.960275), math.radians(16.658242)), False)
sketch11.addGeometry(Part.ArcOfCircle(Part.Circle(App.Vector(5.269174, 1.576643, 0), App.Vector(0, 0, 1), 0.5), math.radians(16.658242), math.radians(196.658242)), False)
sketch11.addGeometry(Part.ArcOfCircle(Part.Circle(App.Vector(0, 0, 0), App.Vector(0, 0, 1), 6), math.radians(-76.658242), math.radians(16.658242)), False)
sketch11.addGeometry(Part.ArcOfCircle(Part.Circle(App.Vector(1.269174, -5.35156, 0), App.Vector(0, 0, 1), 0.5), math.radians(103.341758), math.radians(283.341758)), False)
sketch11.addGeometry(Part.ArcOfCircle(Part.Circle(App.Vector(0, 0, 0), App.Vector(0, 0, 1), 5), math.radians(-76.658242), math.radians(-36.039725)), False)
sketch11.addGeometry(Part.LineSegment(App.Vector(4.043046, -2.94173, 0), App.Vector(2.708932, -2.171479, 0)), False)
sketch11.addGeometry(Part.ArcOfCircle(Part.Circle(App.Vector(2.971977, -1.715871, 0), App.Vector(0, 0, 1), 0.52609), math.radians(60), math.radians(240)), False)
sketch11.addConstraint(Sketcher.Constraint("Tangent", 0, 2, 1, 2))
sketch11.addConstraint(Sketcher.Constraint("Tangent", 1, 1, 2, 1))
sketch11.addConstraint(Sketcher.Constraint("Coincident", 2, 2, 3, 1))
sketch11.addConstraint(Sketcher.Constraint("Tangent", 3, 2, 4, 2))
sketch11.addConstraint(Sketcher.Constraint("Tangent", 4, 1, 5, 2))
sketch11.addConstraint(Sketcher.Constraint("Tangent", 5, 1, 6, 2))
sketch11.addConstraint(Sketcher.Constraint("Tangent", 6, 1, 7, 1))
sketch11.addConstraint(Sketcher.Constraint("Coincident", 7, 2, 0, 1))
sketch11.addConstraint(Sketcher.Constraint("Coincident", 8, 2, 9, 1))
sketch11.addConstraint(Sketcher.Constraint("Tangent", 9, 2, 10, 2))
sketch11.addConstraint(Sketcher.Constraint("Tangent", 10, 1, 11, 2))
sketch11.addConstraint(Sketcher.Constraint("Tangent", 11, 1, 12, 2))
sketch11.addConstraint(Sketcher.Constraint("Tangent", 12, 1, 13, 1))
sketch11.addConstraint(Sketcher.Constraint("Coincident", 13, 2, 14, 1))
sketch11.addConstraint(Sketcher.Constraint("Tangent", 14, 2, 15, 2))
sketch11.addConstraint(Sketcher.Constraint("Tangent", 15, 1, 8, 1))
sketch11.addConstraint(Sketcher.Constraint("Coincident", 16, 2, 17, 1))
sketch11.addConstraint(Sketcher.Constraint("Tangent", 17, 2, 18, 2))
sketch11.addConstraint(Sketcher.Constraint("Tangent", 18, 1, 19, 2))
sketch11.addConstraint(Sketcher.Constraint("Tangent", 19, 1, 20, 2))
sketch11.addConstraint(Sketcher.Constraint("Tangent", 20, 1, 21, 1))
sketch11.addConstraint(Sketcher.Constraint("Coincident", 21, 2, 22, 1))
sketch11.addConstraint(Sketcher.Constraint("Tangent", 22, 2, 23, 2))
sketch11.addConstraint(Sketcher.Constraint("Tangent", 23, 1, 16, 1))
sketch11.addConstraint(Sketcher.Constraint("Vertical", 0))
sketch11.addConstraint(Sketcher.Constraint("Vertical", 2))
sketch11.addConstraint(Sketcher.Constraint("Coincident", 3, 3, -1, 1))
sketch11.addConstraint(Sketcher.Constraint("Coincident", 5, 3, -1, 1))
sketch11.addConstraint(Sketcher.Constraint("Coincident", 7, 3, -1, 1))
sketch11.addConstraint(Sketcher.Constraint("Coincident", 9, 3, -1, 1))
sketch11.addConstraint(Sketcher.Constraint("Coincident", 11, 3, -1, 1))
sketch11.addConstraint(Sketcher.Constraint("Coincident", 13, 3, -1, 1))
sketch11.addConstraint(Sketcher.Constraint("Coincident", 17, 3, -1, 1))
sketch11.addConstraint(Sketcher.Constraint("Coincident", 19, 3, -1, 1))
sketch11.addConstraint(Sketcher.Constraint("Coincident", 21, 3, -1, 1))
sketch11.addConstraint(Sketcher.Constraint("Equal", 4, 6))
sketch11.addConstraint(Sketcher.Constraint("Equal", 7, 9))
sketch11.addConstraint(Sketcher.Constraint("Equal", 6, 10))
sketch11.addConstraint(Sketcher.Constraint("Equal", 10, 12))
sketch11.addConstraint(Sketcher.Constraint("Equal", 1, 15))
sketch11.addConstraint(Sketcher.Constraint("Equal", 13, 17))
sketch11.addConstraint(Sketcher.Constraint("Equal", 12, 18))
sketch11.addConstraint(Sketcher.Constraint("Equal", 18, 20))
sketch11.addConstraint(Sketcher.Constraint("Equal", 15, 23))
sketch11.addConstraint(Sketcher.Constraint("Symmetric", 15, 3, 23, 3, -2))
sketch11.addConstraint(Sketcher.Constraint("PointOnObject", 1, 3, -2))
sketch11.addConstraint(Sketcher.Constraint("Parallel", 8, 14))
sketch11.addConstraint(Sketcher.Constraint("Parallel", 16, 22))
sketch11.addConstraint(Sketcher.Constraint("Horizontal", 4, 3, 6, 3))
sketch11.addConstraint(Sketcher.Constraint("Horizontal", 12, 3, 18, 3))
sketch11.addConstraint(Sketcher.Constraint("Horizontal", 10, 3, 20, 3))
sketch11.addConstraint(Sketcher.Constraint("Horizontal", 1, 1, 3, 2))
sketch11.addConstraint(Sketcher.Constraint("Horizontal", 13, 2, 16, 2))
sketch11.addConstraint(Sketcher.Constraint("Equal", 8, 14))
sketch11.addConstraint(Sketcher.Constraint("Radius", 3, 5.0))
sketch11.addConstraint(Sketcher.Constraint("Radius", 5, 6.0))
sketch11.addConstraint(Sketcher.Constraint("Angle", 8, Q("-150 deg")))
sketch11.addConstraint(Sketcher.Constraint("DistanceX", 4, 3, -1, 1, 4.0))
sketch11.addConstraint(Sketcher.Constraint("Radius", 1, 0.52609))
sketch11.addConstraint(Sketcher.Constraint("DistanceY", 12, 3, 3, 2, 1.8551))
sketch11.addConstraint(Sketcher.Constraint("DistanceY", 10, 3, -1, 1, 5.35156))
sketch11.addConstraint(Sketcher.Constraint("DistanceY", 15, 3, -1, 1, 1.715871))
pocket5 = body.newObject("PartDesign::Pocket", "Pocket004")
pocket5.Profile = sketch11
pocket5.Length = 2
pocket5.Reversed = True

doc.recompute()
